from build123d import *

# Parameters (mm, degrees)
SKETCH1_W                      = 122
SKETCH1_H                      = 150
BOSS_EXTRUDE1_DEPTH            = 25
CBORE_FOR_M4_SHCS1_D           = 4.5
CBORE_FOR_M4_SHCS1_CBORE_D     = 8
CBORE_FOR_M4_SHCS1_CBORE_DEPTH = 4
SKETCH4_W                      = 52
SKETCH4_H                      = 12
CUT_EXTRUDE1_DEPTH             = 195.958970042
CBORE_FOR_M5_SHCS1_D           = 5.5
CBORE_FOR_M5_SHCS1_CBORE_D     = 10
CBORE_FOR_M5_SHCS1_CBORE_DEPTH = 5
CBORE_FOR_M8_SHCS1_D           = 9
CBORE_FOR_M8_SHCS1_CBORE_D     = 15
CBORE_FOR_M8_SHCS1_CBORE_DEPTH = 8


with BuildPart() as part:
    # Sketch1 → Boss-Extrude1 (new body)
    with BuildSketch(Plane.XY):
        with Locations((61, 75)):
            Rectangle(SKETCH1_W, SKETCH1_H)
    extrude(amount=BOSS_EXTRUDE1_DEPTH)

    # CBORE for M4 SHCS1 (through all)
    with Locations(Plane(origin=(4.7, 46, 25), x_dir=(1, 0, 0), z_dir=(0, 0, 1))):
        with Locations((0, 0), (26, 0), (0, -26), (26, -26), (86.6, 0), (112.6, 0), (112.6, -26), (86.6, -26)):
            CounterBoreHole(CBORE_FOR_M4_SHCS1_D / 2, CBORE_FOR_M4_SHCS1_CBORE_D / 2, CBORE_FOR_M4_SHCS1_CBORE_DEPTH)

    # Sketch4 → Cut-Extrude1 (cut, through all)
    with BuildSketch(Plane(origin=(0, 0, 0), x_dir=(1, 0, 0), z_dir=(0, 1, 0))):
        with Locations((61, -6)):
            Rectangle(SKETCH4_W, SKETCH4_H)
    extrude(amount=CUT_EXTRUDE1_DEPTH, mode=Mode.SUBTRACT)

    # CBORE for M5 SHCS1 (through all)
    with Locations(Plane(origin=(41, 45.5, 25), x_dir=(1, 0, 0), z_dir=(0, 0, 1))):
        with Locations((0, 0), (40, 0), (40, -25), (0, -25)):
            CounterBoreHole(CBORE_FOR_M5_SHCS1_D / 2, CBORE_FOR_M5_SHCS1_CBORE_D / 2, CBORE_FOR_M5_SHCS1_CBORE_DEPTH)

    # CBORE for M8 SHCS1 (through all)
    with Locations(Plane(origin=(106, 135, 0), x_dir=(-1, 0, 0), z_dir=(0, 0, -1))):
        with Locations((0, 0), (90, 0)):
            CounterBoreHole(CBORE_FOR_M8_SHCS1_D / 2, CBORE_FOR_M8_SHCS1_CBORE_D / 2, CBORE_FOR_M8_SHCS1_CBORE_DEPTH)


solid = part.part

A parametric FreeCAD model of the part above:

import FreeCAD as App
import Part
import Sketcher


def add_polygon(sketch, points):
    """Adds a closed chain of lines whose ends are joined by coincident constraints."""
    first, n = sketch.GeometryCount, len(points)
    for a, b in zip(points, points[1:] + points[:1]):
        sketch.addGeometry(Part.LineSegment(App.Vector(*a, 0), App.Vector(*b, 0)), False)
    for i in range(n):
        sketch.addConstraint(Sketcher.Constraint("Coincident", first + i, 2, first + (i + 1) % n, 1))

doc = App.newDocument("Part")
body = doc.addObject("PartDesign::Body", "Body")

# Sketch on XY plane
sketch1 = body.newObject("Sketcher::SketchObject", "Sketch")
sketch1.AttachmentSupport = (doc.getObject("XY_Plane"), [""])
sketch1.MapMode = "FlatFace"
add_polygon(sketch1, [(0, 150), (0, 0), (122, 0), (122, 150)])  # lines 0-3
sketch1.addConstraint(Sketcher.Constraint("Vertical", 0))
sketch1.addConstraint(Sketcher.Constraint("Horizontal", 1))
sketch1.addConstraint(Sketcher.Constraint("Vertical", 2))
sketch1.addConstraint(Sketcher.Constraint("Horizontal", 3))
sketch1.addConstraint(Sketcher.Constraint("Coincident", 0, 2, -1, 1))
sketch1.addConstraint(Sketcher.Constraint("DistanceX", 1, 1, 1, 2, 122.0))
sketch1.addConstraint(Sketcher.Constraint("DistanceY", 0, 2, 0, 1, 150.0))
pad1 = body.newObject("PartDesign::Pad", "Pad")
pad1.Profile = sketch1
pad1.Length = 25

# Sketch on XY plane
sketch2 = body.newObject("Sketcher::SketchObject", "Sketch001")
sketch2.AttachmentSupport = (doc.getObject("XY_Plane"), [""])
sketch2.MapMode = "FlatFace"
sketch2.AttachmentOffset = App.Placement(App.Vector(0, 0, 25), App.Rotation())
sketch2.addGeometry(Part.Circle(App.Vector(4.7, 46, 0), App.Vector(0, 0, 1), 2.25), False)
sketch2.addGeometry(Part.Circle(App.Vector(30.7, 46, 0), App.Vector(0, 0, 1), 2.25), False)
sketch2.addGeometry(Part.Circle(App.Vector(4.7, 20, 0), App.Vector(0, 0, 1), 2.25), False)
sketch2.addGeometry(Part.Circle(App.Vector(30.7, 20, 0), App.Vector(0, 0, 1), 2.25), False)
sketch2.addGeometry(Part.Circle(App.Vector(91.3, 46, 0), App.Vector(0, 0, 1), 2.25), False)
sketch2.addGeometry(Part.Circle(App.Vector(117.3, 46, 0), App.Vector(0, 0, 1), 2.25), False)
sketch2.addGeometry(Part.Circle(App.Vector(117.3, 20, 0), App.Vector(0, 0, 1), 2.25), False)
sketch2.addGeometry(Part.Circle(App.Vector(91.3, 20, 0), App.Vector(0, 0, 1), 2.25), False)
sketch2.addConstraint(Sketcher.Constraint("Equal", 0, 1))
sketch2.addConstraint(Sketcher.Constraint("Equal", 1, 2))
sketch2.addConstraint(Sketcher.Constraint("Equal", 2, 3))
sketch2.addConstraint(Sketcher.Constraint("Equal", 3, 4))
sketch2.addConstraint(Sketcher.Constraint("Equal", 4, 5))
sketch2.addConstraint(Sketcher.Constraint("Equal", 5, 6))
sketch2.addConstraint(Sketcher.Constraint("Equal", 6, 7))
sketch2.addConstraint(Sketcher.Constraint("Horizontal", 0, 3, 1, 3))
sketch2.addConstraint(Sketcher.Constraint("Horizontal", 2, 3, 3, 3))
sketch2.addConstraint(Sketcher.Constraint("Horizontal", 1, 3, 4, 3))
sketch2.addConstraint(Sketcher.Constraint("Horizontal", 4, 3, 5, 3))
sketch2.addConstraint(Sketcher.Constraint("Horizontal", 3, 3, 6, 3))
sketch2.addConstraint(Sketcher.Constraint("Horizontal", 6, 3, 7, 3))
sketch2.addConstraint(Sketcher.Constraint("Vertical", 0, 3, 2, 3))
sketch2.addConstraint(Sketcher.Constraint("Vertical", 1, 3, 3, 3))
sketch2.addConstraint(Sketcher.Constraint("Vertical", 5, 3, 6, 3))
sketch2.addConstraint(Sketcher.Constraint("Vertical", 4, 3, 7, 3))
sketch2.addConstraint(Sketcher.Constraint("Diameter", 0, 4.5))
sketch2.addConstraint(Sketcher.Constraint("DistanceY", -1, 1, 0, 3, 46.0))
sketch2.addConstraint(Sketcher.Constraint("DistanceY", -1, 1, 2, 3, 20.0))
sketch2.addConstraint(Sketcher.Constraint("DistanceX", 0, 3, 1, 3, 26.0))
sketch2.addConstraint(Sketcher.Constraint("DistanceX", 4, 3, 5, 3, 26.0))
sketch2.addConstraint(Sketcher.Constraint("DistanceX", -1, 1, 0, 3, 4.7))
sketch2.addConstraint(Sketcher.Constraint("DistanceX", -1, 1, 4, 3, 91.3))
doc.recompute()
hole = body.newObject("PartDesign::Hole", "Hole")
hole.Profile = sketch2
hole.ThreadType = "None"
hole.Diameter = 4.5
hole.DepthType = "ThroughAll"
hole.HoleCutType = "Counterbore"
hole.HoleCutDiameter = 8
hole.HoleCutDepth = 4

# Sketch on XZ plane
sketch3 = body.newObject("Sketcher::SketchObject", "Sketch002")
sketch3.AttachmentSupport = (doc.getObject("XZ_Plane"), [""])
sketch3.MapMode = "FlatFace"
add_polygon(sketch3, [(35, 0), (35, 12), (87, 12), (87, 0)])  # lines 0-3
sketch3.addConstraint(Sketcher.Constraint("Vertical", 0))
sketch3.addConstraint(Sketcher.Constraint("Horizontal", 1))
sketch3.addConstraint(Sketcher.Constraint("Vertical", 2))
sketch3.addConstraint(Sketcher.Constraint("Horizontal", 3))
sketch3.addConstraint(Sketcher.Constraint("PointOnObject", 2, 2, -1))
sketch3.addConstraint(Sketcher.Constraint("DistanceX", 1, 1, 1, 2, 52.0))
sketch3.addConstraint(Sketcher.Constraint("DistanceY", 0, 1, 0, 2, 12.0))
sketch3.addConstraint(Sketcher.Constraint("DistanceX", -1, 1, 0, 2, 35.0))
pocket1 = body.newObject("PartDesign::Pocket", "Pocket")
pocket1.Profile = sketch3
pocket1.Type = "ThroughAll"

# Sketch on XY plane
sketch4 = body.newObject("Sketcher::SketchObject", "Sketch003")
sketch4.AttachmentSupport = (doc.getObject("XY_Plane"), [""])
sketch4.MapMode = "FlatFace"
sketch4.AttachmentOffset = App.Placement(App.Vector(0, 0, 25), App.Rotation())
sketch4.addGeometry(Part.Circle(App.Vector(41, 45.5, 0), App.Vector(0, 0, 1), 2.75), False)
sketch4.addGeometry(Part.Circle(App.Vector(81, 45.5, 0), App.Vector(0, 0, 1), 2.75), False)
sketch4.addGeometry(Part.Circle(App.Vector(81, 20.5, 0), App.Vector(0, 0, 1), 2.75), False)
sketch4.addGeometry(Part.Circle(App.Vector(41, 20.5, 0), App.Vector(0, 0, 1), 2.75), False)
sketch4.addConstraint(Sketcher.Constraint("Equal", 0, 1))
sketch4.addConstraint(Sketcher.Constraint("Equal", 1, 2))
sketch4.addConstraint(Sketcher.Constraint("Equal", 2, 3))
sketch4.addConstraint(Sketcher.Constraint("Horizontal", 0, 3, 1, 3))
sketch4.addConstraint(Sketcher.Constraint("Horizontal", 2, 3, 3, 3))
sketch4.addConstraint(Sketcher.Constraint("Vertical", 1, 3, 2, 3))
sketch4.addConstraint(Sketcher.Constraint("Vertical", 0, 3, 3, 3))
sketch4.addConstraint(Sketcher.Constraint("Diameter", 0, 5.5))
sketch4.addConstraint(Sketcher.Constraint("DistanceX", -1, 1, 0, 3, 41.0))
sketch4.addConstraint(Sketcher.Constraint("DistanceX", -1, 1, 1, 3, 81.0))
sketch4.addConstraint(Sketcher.Constraint("DistanceY", 2, 3, 1, 3, 25.0))
sketch4.addConstraint(Sketcher.Constraint("DistanceY", -1, 1, 0, 3, 45.5))
doc.recompute()
hole2 = body.newObject("PartDesign::Hole", "Hole001")
hole2.Profile = sketch4
hole2.ThreadType = "None"
hole2.Diameter = 5.5
hole2.DepthType = "ThroughAll"
hole2.HoleCutType = "Counterbore"
hole2.HoleCutDiameter = 10
hole2.HoleCutDepth = 5

# Sketch on XY plane
sketch5 = body.newObject("Sketcher::SketchObject", "Sketch004")
sketch5.AttachmentSupport = (doc.getObject("XY_Plane"), [""])
sketch5.MapMode = "FlatFace"
sketch5.addGeometry(Part.Circle(App.Vector(106, 135, 0), App.Vector(0, 0, 1), 4.5), False)
sketch5.addGeometry(Part.Circle(App.Vector(16, 135, 0), App.Vector(0, 0, 1), 4.5), False)
sketch5.addConstraint(Sketcher.Constraint("Equal", 0, 1))
sketch5.addConstraint(Sketcher.Constraint("Horizontal", 0, 3, 1, 3))
sketch5.addConstraint(Sketcher.Constraint("Diameter", 0, 9.0))
sketch5.addConstraint(Sketcher.Constraint("DistanceX", -1, 1, 0, 3, 106.0))
sketch5.addConstraint(Sketcher.Constraint("DistanceY", -1, 1, 0, 3, 135.0))
sketch5.addConstraint(Sketcher.Constraint("DistanceX", -1, 1, 1, 3, 16.0))
doc.recompute()
hole3 = body.newObject("PartDesign::Hole", "Hole002")
hole3.Profile = sketch5
hole3.ThreadType = "None"
hole3.Diameter = 9
hole3.DepthType = "ThroughAll"
hole3.HoleCutType = "Counterbore"
hole3.HoleCutDiameter = 15
hole3.HoleCutDepth = 8
hole3.Reversed = True

doc.recompute()
